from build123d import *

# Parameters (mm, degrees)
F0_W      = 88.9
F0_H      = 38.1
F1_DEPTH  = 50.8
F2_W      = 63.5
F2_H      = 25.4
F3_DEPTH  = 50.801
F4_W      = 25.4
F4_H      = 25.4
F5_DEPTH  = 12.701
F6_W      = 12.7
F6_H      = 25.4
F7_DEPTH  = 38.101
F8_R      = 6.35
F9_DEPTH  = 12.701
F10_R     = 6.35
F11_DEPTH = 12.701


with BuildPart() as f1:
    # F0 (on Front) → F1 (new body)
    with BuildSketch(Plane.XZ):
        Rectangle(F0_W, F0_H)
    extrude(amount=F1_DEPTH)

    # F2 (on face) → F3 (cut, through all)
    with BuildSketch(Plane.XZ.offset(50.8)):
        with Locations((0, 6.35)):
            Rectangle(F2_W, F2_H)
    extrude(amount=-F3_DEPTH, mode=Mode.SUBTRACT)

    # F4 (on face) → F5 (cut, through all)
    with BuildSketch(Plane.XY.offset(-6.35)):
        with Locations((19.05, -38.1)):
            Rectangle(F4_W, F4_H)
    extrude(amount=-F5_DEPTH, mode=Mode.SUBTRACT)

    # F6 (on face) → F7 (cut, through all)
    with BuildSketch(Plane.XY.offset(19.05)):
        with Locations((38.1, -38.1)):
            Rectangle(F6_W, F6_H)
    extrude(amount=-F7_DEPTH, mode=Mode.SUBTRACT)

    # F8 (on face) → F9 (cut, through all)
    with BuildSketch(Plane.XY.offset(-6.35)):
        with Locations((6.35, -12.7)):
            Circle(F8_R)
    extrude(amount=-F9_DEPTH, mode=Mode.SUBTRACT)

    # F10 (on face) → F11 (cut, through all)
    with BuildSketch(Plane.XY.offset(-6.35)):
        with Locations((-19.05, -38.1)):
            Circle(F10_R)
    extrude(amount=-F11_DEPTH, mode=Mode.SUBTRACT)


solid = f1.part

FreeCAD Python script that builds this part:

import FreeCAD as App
import Part
import Sketcher
Q = App.Units.Quantity


def add_polygon(sketch, points):
    """Adds a closed chain of lines whose ends are joined by coincident constraints."""
    first, n = sketch.GeometryCount, len(points)
    for a, b in zip(points, points[1:] + points[:1]):
        sketch.addGeometry(Part.LineSegment(App.Vector(*a, 0), App.Vector(*b, 0)), False)
    for i in range(n):
        sketch.addConstraint(Sketcher.Constraint("Coincident", first + i, 2, first + (i + 1) % n, 1))

doc = App.newDocument("Part")
body = doc.addObject("PartDesign::Body", "Body")

# Sketch on XZ plane
sketch1 = body.newObject("Sketcher::SketchObject", "Sketch")
sketch1.AttachmentSupport = (doc.getObject("XZ_Plane"), [""])
sketch1.MapMode = "FlatFace"
add_polygon(sketch1, [(-44, 19), (-44, -19), (44, -19), (44, 19)])  # lines 0-3
sketch1.addConstraint(Sketcher.Constraint("Vertical", 0))
sketch1.addConstraint(Sketcher.Constraint("Horizontal", 1))
sketch1.addConstraint(Sketcher.Constraint("Vertical", 2))
sketch1.addConstraint(Sketcher.Constraint("Horizontal", 3))
sketch1.addConstraint(Sketcher.Constraint("Symmetric", 0, 2, 2, 2, -1, 1))
sketch1.addConstraint(Sketcher.Constraint("DistanceX", 1, 1, 1, 2, Q("3.5 in")))
sketch1.addConstraint(Sketcher.Constraint("DistanceY", 0, 2, 0, 1, Q("1.5 in")))
pad1 = body.newObject("PartDesign::Pad", "Pad")
pad1.Profile = sketch1
pad1.Length = Q("2 in")

# Sketch on XZ plane
sketch2 = body.newObject("Sketcher::SketchObject", "Sketch001")
sketch2.AttachmentSupport = (doc.getObject("XZ_Plane"), [""])
sketch2.MapMode = "FlatFace"
sketch2.AttachmentOffset = App.Placement(App.Vector(0, 0, 2 * 25.4), App.Rotation())
add_polygon(sketch2, [(-32, 19), (-32, -6), (32, -6), (32, 19)])  # lines 0-3
sketch2.addConstraint(Sketcher.Constraint("Vertical", 0))
sketch2.addConstraint(Sketcher.Constraint("Horizontal", 1))
sketch2.addConstraint(Sketcher.Constraint("Vertical", 2))
sketch2.addConstraint(Sketcher.Constraint("Horizontal", 3))
sketch2.addConstraint(Sketcher.Constraint("DistanceY", 0, 2, 0, 1, Q("1 in")))
sketch2.addConstraint(Sketcher.Constraint("DistanceX", 1, 1, 1, 2, Q("2.5 in")))
sketch2.addConstraint(Sketcher.Constraint("DistanceX", 0, 2, -1, 1, Q("1.25 in")))
sketch2.addConstraint(Sketcher.Constraint("DistanceY", 0, 2, -1, 1, Q("0.25 in")))
pocket1 = body.newObject("PartDesign::Pocket", "Pocket")
pocket1.Profile = sketch2
pocket1.Type = "ThroughAll"

# Sketch on XY plane
sketch3 = body.newObject("Sketcher::SketchObject", "Sketch002")
sketch3.AttachmentSupport = (doc.getObject("XY_Plane"), [""])
sketch3.MapMode = "FlatFace"
sketch3.AttachmentOffset = App.Placement(App.Vector(0, 0, -0.25 * 25.4), App.Rotation())
add_polygon(sketch3, [(6, -25), (6, -51), (32, -51), (32, -25)])  # lines 0-3
sketch3.addConstraint(Sketcher.Constraint("Vertical", 0))
sketch3.addConstraint(Sketcher.Constraint("Horizontal", 1))
sketch3.addConstraint(Sketcher.Constraint("Vertical", 2))
sketch3.addConstraint(Sketcher.Constraint("Horizontal", 3))
sketch3.addConstraint(Sketcher.Constraint("Equal", 3, 0))
sketch3.addConstraint(Sketcher.Constraint("DistanceX", 1, 1, 1, 2, Q("1 in")))
sketch3.addConstraint(Sketcher.Constraint("DistanceY", 0, 2, -1, 1, Q("2 in")))
sketch3.addConstraint(Sketcher.Constraint("DistanceX", -1, 1, 0, 2, Q("0.25 in")))
pocket2 = body.newObject("PartDesign::Pocket", "Pocket001")
pocket2.Profile = sketch3
pocket2.Type = "ThroughAll"

# Sketch on XY plane
sketch4 = body.newObject("Sketcher::SketchObject", "Sketch003")
sketch4.AttachmentSupport = (doc.getObject("XY_Plane"), [""])
sketch4.MapMode = "FlatFace"
sketch4.AttachmentOffset = App.Placement(App.Vector(0, 0, 0.75 * 25.4), App.Rotation())
add_polygon(sketch4, [(32, -25), (32, -51), (44, -51), (44, -25)])  # lines 0-3
sketch4.addConstraint(Sketcher.Constraint("Vertical", 0))
sketch4.addConstraint(Sketcher.Constraint("Horizontal", 1))
sketch4.addConstraint(Sketcher.Constraint("Vertical", 2))
sketch4.addConstraint(Sketcher.Constraint("Horizontal", 3))
sketch4.addConstraint(Sketcher.Constraint("DistanceY", 0, 2, 0, 1, Q("1 in")))
sketch4.addConstraint(Sketcher.Constraint("DistanceX", 1, 1, 1, 2, Q("0.5 in")))
sketch4.addConstraint(Sketcher.Constraint("DistanceY", 0, 2, -1, 1, Q("2 in")))
sketch4.addConstraint(Sketcher.Constraint("DistanceX", -1, 1, 0, 2, Q("1.25 in")))
pocket3 = body.newObject("PartDesign::Pocket", "Pocket002")
pocket3.Profile = sketch4
pocket3.Type = "ThroughAll"

# Sketch on XY plane
sketch5 = body.newObject("Sketcher::SketchObject", "Sketch004")
sketch5.AttachmentSupport = (doc.getObject("XY_Plane"), [""])
sketch5.MapMode = "FlatFace"
sketch5.AttachmentOffset = App.Placement(App.Vector(0, 0, -0.25 * 25.4), App.Rotation())
sketch5.addGeometry(Part.Circle(App.Vector(6, -13, 0), App.Vector(0, 0, 1), 6), False)
sketch5.addConstraint(Sketcher.Constraint("Diameter", 0, Q("0.5 in")))
sketch5.addConstraint(Sketcher.Constraint("DistanceY", 0, 3, -1, 1, Q("0.5 in")))
sketch5.addConstraint(Sketcher.Constraint("DistanceX", -1, 1, 0, 3, Q("0.25 in")))
pocket4 = body.newObject("PartDesign::Pocket", "Pocket003")
pocket4.Profile = sketch5
pocket4.Type = "ThroughAll"

# Sketch on XY plane
sketch6 = body.newObject("Sketcher::SketchObject", "Sketch005")
sketch6.AttachmentSupport = (doc.getObject("XY_Plane"), [""])
sketch6.MapMode = "FlatFace"
sketch6.AttachmentOffset = App.Placement(App.Vector(0, 0, -0.25 * 25.4), App.Rotation())
sketch6.addGeometry(Part.Circle(App.Vector(-19, -38, 0), App.Vector(0, 0, 1), 6), False)
sketch6.addConstraint(Sketcher.Constraint("Diameter", 0, Q("0.5 in")))
sketch6.addConstraint(Sketcher.Constraint("DistanceY", 0, 3, -1, 1, Q("1.5 in")))
sketch6.addConstraint(Sketcher.Constraint("DistanceX", 0, 3, -1, 1, Q("0.75 in")))
pocket5 = body.newObject("PartDesign::Pocket", "Pocket004")
pocket5.Profile = sketch6
pocket5.Type = "ThroughAll"

doc.recompute()
